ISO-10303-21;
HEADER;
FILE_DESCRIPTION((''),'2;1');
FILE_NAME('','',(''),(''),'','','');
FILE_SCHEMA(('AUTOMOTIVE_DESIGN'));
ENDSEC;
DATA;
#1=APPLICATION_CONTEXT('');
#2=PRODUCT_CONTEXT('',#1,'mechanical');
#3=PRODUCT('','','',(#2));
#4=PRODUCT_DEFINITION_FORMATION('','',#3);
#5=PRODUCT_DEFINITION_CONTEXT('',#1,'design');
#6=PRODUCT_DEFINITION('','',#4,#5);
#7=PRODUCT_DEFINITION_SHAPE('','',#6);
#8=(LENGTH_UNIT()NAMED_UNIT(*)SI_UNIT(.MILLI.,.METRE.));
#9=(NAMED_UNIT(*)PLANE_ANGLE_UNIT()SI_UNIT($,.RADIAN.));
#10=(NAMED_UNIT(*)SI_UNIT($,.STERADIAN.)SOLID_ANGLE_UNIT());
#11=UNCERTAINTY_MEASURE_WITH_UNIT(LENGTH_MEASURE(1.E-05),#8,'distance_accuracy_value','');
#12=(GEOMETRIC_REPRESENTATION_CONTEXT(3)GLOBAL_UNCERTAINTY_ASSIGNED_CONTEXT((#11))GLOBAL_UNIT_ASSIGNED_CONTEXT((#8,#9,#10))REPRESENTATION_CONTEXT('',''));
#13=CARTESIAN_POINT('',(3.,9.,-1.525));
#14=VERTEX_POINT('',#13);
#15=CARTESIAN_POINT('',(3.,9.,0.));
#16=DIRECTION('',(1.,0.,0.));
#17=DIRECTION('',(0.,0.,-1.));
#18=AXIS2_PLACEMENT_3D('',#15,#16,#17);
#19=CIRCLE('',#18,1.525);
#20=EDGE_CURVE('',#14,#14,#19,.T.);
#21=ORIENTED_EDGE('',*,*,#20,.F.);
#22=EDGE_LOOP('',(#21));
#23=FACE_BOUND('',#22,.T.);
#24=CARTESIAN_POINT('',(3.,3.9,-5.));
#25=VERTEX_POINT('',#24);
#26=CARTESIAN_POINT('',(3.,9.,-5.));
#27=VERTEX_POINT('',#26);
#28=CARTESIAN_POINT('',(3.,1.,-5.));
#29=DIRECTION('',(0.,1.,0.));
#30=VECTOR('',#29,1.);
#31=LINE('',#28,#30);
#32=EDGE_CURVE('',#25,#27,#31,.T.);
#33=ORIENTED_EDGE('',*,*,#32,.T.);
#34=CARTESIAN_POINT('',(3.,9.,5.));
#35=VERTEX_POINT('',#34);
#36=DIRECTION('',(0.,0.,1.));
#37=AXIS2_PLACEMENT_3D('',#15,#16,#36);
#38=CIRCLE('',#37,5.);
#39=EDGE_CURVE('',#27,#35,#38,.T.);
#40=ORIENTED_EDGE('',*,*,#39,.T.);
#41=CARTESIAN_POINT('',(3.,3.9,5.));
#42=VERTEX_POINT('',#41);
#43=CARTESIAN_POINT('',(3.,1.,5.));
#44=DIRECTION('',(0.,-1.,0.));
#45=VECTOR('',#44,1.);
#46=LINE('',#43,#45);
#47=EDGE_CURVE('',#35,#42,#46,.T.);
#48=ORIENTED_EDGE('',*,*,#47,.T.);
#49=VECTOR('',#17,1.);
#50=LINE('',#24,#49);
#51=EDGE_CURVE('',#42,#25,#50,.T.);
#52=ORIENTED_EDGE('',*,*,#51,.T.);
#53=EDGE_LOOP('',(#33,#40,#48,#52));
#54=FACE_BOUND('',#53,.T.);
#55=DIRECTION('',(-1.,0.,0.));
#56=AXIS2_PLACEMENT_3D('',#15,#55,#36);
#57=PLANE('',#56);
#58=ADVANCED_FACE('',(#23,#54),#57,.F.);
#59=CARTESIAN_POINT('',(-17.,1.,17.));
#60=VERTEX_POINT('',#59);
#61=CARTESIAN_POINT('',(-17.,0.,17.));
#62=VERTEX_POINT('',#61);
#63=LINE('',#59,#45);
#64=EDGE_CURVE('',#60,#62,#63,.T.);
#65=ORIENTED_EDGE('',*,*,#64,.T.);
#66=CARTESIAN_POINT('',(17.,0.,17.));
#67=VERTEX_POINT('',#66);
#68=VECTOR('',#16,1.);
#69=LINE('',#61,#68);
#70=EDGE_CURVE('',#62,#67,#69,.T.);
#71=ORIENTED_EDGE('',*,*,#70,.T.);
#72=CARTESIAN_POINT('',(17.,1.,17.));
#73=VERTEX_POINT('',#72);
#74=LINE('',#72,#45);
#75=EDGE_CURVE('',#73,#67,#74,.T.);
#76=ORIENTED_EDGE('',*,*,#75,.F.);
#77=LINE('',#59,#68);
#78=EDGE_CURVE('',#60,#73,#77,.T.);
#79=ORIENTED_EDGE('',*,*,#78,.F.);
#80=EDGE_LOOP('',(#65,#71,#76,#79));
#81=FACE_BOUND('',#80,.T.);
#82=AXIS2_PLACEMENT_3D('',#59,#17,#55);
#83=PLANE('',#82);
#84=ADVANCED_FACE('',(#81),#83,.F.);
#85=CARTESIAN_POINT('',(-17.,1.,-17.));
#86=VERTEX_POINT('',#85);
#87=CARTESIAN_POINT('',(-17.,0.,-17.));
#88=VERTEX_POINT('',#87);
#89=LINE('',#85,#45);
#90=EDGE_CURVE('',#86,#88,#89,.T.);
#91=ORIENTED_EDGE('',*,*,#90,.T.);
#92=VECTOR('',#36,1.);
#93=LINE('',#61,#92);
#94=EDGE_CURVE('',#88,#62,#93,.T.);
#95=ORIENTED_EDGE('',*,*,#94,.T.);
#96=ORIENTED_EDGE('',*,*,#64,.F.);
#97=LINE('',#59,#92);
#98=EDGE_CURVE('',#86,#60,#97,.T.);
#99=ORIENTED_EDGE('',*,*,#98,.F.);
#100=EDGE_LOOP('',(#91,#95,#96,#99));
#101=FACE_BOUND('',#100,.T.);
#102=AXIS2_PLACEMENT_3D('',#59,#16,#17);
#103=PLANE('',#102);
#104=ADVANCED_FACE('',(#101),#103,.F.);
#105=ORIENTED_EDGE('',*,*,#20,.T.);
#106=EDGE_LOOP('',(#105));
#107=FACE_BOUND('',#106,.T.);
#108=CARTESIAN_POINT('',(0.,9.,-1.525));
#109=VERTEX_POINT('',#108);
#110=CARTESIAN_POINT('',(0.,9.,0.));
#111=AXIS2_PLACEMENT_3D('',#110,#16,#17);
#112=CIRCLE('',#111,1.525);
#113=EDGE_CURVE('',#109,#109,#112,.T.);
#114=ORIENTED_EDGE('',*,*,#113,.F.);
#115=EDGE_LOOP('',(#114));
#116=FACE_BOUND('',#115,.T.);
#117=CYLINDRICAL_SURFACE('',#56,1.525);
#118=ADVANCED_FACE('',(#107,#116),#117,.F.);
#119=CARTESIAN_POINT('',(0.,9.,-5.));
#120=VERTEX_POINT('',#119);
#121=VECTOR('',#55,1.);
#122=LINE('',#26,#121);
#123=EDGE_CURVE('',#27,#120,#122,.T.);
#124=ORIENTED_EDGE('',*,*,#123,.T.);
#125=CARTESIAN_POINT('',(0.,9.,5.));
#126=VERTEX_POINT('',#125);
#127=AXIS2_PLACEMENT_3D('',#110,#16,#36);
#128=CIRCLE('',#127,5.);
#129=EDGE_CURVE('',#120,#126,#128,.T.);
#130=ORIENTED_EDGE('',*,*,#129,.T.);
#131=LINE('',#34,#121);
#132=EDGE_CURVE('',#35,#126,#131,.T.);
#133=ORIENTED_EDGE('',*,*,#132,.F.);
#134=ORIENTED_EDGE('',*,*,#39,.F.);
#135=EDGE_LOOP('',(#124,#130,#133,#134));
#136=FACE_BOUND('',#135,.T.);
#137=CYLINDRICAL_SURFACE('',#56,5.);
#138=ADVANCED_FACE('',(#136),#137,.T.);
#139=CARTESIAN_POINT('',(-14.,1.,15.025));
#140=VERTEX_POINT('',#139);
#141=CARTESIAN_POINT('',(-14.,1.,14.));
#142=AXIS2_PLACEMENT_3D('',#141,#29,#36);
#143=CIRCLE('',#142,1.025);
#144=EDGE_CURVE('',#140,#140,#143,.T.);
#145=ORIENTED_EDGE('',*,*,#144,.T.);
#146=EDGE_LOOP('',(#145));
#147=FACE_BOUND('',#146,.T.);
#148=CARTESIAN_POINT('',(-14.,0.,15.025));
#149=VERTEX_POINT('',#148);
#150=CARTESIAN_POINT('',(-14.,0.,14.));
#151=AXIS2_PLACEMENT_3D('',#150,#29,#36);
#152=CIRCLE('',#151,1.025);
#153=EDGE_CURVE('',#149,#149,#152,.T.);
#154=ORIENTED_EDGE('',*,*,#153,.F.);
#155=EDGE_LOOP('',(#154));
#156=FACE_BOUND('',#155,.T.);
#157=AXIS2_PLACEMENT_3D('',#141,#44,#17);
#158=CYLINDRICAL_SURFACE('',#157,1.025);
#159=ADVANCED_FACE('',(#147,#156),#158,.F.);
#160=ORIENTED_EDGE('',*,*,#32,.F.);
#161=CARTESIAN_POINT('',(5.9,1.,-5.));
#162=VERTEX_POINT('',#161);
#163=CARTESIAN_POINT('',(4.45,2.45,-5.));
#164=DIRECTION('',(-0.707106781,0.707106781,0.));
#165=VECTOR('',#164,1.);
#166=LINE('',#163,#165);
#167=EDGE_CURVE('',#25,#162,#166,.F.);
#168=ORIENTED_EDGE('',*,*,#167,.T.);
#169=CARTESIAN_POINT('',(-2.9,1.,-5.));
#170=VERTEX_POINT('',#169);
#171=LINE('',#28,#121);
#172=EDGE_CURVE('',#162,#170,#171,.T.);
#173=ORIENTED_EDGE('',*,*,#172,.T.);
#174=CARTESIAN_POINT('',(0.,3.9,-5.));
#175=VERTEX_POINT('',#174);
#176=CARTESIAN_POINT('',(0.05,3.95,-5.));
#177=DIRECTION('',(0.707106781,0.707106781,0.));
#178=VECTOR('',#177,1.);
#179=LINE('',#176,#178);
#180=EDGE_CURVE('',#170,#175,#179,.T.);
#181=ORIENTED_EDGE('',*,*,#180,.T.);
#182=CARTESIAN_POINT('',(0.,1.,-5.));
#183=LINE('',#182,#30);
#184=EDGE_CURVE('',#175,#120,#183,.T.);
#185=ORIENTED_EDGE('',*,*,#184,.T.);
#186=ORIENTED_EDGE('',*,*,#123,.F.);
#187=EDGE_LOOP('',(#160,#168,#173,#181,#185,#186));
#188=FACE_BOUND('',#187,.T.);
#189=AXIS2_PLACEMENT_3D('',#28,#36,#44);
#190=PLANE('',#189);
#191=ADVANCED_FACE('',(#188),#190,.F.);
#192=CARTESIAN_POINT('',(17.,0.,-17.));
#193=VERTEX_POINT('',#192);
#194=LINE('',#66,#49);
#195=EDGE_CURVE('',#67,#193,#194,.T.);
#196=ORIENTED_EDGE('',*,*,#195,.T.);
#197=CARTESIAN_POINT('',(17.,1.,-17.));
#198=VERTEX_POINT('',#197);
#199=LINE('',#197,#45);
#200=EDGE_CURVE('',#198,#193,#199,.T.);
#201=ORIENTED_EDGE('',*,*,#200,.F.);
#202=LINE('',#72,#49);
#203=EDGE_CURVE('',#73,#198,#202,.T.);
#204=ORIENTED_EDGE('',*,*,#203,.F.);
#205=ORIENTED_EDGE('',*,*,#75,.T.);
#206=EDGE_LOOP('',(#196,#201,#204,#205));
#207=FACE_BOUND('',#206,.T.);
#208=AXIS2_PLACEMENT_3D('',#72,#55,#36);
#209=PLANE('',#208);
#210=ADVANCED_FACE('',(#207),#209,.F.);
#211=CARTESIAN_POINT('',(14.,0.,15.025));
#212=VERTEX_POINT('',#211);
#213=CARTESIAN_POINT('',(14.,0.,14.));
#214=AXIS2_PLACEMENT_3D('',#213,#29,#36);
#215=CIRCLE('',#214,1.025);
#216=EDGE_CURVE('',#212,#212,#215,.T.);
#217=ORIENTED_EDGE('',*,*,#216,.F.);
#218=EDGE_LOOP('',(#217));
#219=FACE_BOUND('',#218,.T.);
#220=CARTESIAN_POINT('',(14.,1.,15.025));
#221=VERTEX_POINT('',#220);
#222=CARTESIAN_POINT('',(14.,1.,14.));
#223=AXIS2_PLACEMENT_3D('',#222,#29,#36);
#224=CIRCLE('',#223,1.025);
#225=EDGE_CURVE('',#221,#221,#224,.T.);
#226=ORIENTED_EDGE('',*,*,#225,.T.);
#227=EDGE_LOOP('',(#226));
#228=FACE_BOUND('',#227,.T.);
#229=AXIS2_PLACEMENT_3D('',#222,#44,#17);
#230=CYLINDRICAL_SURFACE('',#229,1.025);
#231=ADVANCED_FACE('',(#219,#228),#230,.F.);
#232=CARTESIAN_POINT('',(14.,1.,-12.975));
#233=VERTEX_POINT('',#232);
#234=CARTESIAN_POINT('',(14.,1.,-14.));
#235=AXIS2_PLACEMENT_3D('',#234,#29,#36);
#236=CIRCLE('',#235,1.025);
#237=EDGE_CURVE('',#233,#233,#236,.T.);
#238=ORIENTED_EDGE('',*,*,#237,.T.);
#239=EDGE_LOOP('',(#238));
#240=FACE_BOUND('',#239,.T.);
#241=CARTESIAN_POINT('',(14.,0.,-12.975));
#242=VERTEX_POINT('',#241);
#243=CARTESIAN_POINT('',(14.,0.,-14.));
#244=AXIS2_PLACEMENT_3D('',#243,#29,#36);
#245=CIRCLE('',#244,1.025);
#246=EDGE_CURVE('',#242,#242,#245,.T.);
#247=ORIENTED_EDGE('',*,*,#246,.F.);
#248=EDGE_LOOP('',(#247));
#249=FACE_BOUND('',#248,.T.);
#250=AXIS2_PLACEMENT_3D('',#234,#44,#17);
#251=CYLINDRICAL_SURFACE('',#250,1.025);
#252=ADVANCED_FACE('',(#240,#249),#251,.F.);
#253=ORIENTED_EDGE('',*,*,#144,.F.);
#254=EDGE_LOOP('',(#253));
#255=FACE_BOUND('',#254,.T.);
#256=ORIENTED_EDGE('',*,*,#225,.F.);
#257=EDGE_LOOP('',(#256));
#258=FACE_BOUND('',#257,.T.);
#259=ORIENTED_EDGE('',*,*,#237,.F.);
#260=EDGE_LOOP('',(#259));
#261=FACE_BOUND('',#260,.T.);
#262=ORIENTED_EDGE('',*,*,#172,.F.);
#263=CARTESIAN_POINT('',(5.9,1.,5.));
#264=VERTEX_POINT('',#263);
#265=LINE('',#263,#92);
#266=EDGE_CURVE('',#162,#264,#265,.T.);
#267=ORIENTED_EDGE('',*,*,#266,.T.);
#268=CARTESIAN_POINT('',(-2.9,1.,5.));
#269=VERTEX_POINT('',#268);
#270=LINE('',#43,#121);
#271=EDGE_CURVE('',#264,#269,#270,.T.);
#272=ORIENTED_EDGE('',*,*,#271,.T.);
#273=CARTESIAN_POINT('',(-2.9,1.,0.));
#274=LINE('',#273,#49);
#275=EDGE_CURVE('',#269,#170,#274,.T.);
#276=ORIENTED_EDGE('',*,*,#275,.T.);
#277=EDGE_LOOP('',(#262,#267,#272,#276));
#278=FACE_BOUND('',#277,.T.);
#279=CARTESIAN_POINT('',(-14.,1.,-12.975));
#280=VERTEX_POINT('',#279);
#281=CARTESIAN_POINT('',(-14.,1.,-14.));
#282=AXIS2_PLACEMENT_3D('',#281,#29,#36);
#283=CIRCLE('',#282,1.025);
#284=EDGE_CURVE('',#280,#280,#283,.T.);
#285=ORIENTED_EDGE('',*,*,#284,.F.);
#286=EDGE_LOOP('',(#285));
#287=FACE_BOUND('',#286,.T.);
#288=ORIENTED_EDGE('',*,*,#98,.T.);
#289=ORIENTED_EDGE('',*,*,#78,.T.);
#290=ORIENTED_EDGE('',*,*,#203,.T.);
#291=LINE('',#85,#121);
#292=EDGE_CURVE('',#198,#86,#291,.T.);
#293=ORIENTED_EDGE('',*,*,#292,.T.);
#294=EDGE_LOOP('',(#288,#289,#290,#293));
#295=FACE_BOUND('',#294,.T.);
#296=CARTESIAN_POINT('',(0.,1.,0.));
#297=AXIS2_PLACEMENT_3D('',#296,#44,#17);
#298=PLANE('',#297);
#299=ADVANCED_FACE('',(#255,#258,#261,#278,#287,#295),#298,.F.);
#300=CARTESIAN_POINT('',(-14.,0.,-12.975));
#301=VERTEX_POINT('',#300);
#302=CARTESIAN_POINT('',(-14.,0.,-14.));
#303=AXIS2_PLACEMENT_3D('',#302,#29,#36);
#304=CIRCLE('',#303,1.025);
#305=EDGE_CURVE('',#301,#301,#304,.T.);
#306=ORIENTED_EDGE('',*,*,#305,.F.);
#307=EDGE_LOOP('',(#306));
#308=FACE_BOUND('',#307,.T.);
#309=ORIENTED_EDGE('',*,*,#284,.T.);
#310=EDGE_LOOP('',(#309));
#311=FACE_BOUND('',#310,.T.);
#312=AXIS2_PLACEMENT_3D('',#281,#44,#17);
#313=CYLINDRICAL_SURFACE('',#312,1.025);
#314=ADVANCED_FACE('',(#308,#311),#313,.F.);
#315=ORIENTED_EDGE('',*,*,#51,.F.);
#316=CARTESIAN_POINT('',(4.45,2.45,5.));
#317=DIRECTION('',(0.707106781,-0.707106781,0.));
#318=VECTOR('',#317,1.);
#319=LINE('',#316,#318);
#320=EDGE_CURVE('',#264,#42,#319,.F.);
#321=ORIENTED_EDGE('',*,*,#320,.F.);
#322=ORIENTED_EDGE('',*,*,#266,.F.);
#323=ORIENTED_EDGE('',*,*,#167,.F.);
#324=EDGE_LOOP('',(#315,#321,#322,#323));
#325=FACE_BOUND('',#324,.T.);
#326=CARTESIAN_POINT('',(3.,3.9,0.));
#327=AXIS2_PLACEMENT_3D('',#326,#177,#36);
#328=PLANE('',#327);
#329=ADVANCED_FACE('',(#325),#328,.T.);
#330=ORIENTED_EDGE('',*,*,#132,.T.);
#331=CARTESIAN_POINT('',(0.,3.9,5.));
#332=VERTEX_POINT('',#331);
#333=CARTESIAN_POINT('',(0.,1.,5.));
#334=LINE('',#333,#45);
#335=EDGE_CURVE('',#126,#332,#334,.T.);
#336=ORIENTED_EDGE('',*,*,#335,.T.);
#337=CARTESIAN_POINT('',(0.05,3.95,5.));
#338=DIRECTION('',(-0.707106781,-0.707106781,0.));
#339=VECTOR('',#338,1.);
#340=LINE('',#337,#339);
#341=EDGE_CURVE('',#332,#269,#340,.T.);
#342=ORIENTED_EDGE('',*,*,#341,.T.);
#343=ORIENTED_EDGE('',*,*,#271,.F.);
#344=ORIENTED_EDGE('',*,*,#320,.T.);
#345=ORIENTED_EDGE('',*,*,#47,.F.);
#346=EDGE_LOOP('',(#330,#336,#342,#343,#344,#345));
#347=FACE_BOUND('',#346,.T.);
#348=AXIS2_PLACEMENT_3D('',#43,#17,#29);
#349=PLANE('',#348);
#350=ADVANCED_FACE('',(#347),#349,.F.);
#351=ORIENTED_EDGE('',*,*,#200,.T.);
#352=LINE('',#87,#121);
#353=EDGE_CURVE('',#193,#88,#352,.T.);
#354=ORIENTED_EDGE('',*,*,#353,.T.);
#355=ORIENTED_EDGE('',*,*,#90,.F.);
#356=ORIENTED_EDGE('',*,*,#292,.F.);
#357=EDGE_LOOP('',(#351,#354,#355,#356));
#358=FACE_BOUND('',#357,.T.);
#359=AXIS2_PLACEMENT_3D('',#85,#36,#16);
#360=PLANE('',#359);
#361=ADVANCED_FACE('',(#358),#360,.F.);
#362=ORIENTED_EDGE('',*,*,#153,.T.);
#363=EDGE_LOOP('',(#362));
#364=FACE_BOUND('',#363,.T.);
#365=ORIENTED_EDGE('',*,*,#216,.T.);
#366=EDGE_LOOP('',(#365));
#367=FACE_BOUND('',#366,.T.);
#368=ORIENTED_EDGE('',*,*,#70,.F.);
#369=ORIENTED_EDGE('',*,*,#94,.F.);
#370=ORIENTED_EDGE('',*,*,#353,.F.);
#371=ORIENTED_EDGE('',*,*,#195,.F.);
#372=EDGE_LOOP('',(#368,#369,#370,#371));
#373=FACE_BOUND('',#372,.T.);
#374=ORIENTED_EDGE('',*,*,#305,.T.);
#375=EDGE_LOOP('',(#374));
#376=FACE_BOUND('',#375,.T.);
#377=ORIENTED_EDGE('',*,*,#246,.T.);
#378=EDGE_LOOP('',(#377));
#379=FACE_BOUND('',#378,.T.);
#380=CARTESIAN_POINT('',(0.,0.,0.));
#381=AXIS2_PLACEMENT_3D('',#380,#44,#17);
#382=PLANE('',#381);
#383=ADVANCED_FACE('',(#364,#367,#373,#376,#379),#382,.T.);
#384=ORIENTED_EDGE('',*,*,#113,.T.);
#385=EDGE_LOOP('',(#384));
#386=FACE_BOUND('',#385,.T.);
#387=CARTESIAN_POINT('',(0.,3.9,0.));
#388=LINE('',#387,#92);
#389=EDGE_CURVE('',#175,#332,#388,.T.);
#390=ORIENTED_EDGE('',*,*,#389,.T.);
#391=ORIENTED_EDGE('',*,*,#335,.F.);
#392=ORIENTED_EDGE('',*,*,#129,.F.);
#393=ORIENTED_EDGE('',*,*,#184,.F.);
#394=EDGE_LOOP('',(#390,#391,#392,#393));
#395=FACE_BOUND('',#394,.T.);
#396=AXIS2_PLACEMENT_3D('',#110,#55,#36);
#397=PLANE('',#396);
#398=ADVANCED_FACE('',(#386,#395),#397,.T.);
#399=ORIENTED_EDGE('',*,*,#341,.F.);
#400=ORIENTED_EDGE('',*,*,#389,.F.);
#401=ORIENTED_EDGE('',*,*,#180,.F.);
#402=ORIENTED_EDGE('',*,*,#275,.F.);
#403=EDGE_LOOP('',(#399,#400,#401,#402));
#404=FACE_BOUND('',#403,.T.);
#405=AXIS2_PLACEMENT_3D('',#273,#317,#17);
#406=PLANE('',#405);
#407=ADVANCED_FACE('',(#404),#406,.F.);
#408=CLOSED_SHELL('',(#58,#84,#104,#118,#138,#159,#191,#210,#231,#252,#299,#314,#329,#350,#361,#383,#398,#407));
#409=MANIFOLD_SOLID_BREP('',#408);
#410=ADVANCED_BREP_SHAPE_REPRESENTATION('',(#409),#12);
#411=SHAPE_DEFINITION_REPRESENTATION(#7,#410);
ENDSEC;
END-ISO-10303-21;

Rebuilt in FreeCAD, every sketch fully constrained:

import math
import FreeCAD as App
import Part
import Sketcher
from FreeCAD import Vector


def edges_at(feature, points):
    """Names of the edges that pass closest to the given points."""
    edges = feature.Shape.Edges
    near = lambda p: min(range(len(edges)), key=lambda i: edges[i].distToShape(Part.Vertex(*p))[0])
    return sorted({f"Edge{near(p) + 1}" for p in points})

doc = App.newDocument("Part")
body = doc.addObject("PartDesign::Body", "Body")

sketch1 = body.newObject("Sketcher::SketchObject", "Sketch")
sketch1.AttachmentSupport = (doc.getObject("XZ_Plane"), [""])
sketch1.MapMode = "FlatFace"
sketch1.addGeometry(Part.LineSegment(Vector(-17, -17, 0), Vector(-17, 17, 0)), False)
sketch1.addGeometry(Part.LineSegment(Vector(-17, 17, 0), Vector(17, 17, 0)), False)
sketch1.addGeometry(Part.LineSegment(Vector(17, 17, 0), Vector(17, -17, 0)), False)
sketch1.addGeometry(Part.LineSegment(Vector(17, -17, 0), Vector(-17, -17, 0)), False)
sketch1.addGeometry(Part.Circle(Vector(-14, 14, 0), Vector(0, 0, 1), 1.025), False)
sketch1.addGeometry(Part.Circle(Vector(14, 14, 0), Vector(0, 0, 1), 1.025), False)
sketch1.addGeometry(Part.Circle(Vector(-14, -14, 0), Vector(0, 0, 1), 1.025), False)
sketch1.addGeometry(Part.Circle(Vector(14, -14, 0), Vector(0, 0, 1), 1.025), False)
sketch1.addConstraint(Sketcher.Constraint("Coincident", 0, 2, 1, 1))
sketch1.addConstraint(Sketcher.Constraint("Coincident", 1, 2, 2, 1))
sketch1.addConstraint(Sketcher.Constraint("Coincident", 2, 2, 3, 1))
sketch1.addConstraint(Sketcher.Constraint("Coincident", 3, 2, 0, 1))
sketch1.addConstraint(Sketcher.Constraint("Vertical", 0))
sketch1.addConstraint(Sketcher.Constraint("Horizontal", 1))
sketch1.addConstraint(Sketcher.Constraint("Vertical", 2))
sketch1.addConstraint(Sketcher.Constraint("Horizontal", 3))
sketch1.addConstraint(Sketcher.Constraint("Equal", 4, 5))
sketch1.addConstraint(Sketcher.Constraint("Equal", 5, 6))
sketch1.addConstraint(Sketcher.Constraint("Equal", 6, 7))
sketch1.addConstraint(Sketcher.Constraint("Symmetric", 5, 3, 6, 3, -1, 1))
sketch1.addConstraint(Sketcher.Constraint("Symmetric", 4, 3, 7, 3, -1, 1))
sketch1.addConstraint(Sketcher.Constraint("Symmetric", 0, 2, 2, 2, -1, 1))
sketch1.addConstraint(Sketcher.Constraint("Symmetric", 4, 3, 5, 3, -2))
sketch1.addConstraint(Sketcher.Constraint("Equal", 3, 0))
sketch1.addConstraint(Sketcher.Constraint("Diameter", 4, 2.05))
sketch1.addConstraint(Sketcher.Constraint("DistanceX", 1, 1, 1, 2, 34.0))
sketch1.addConstraint(Sketcher.Constraint("DistanceX", 4, 3, -1, 1, 14.0))
sketch1.addConstraint(Sketcher.Constraint("DistanceY", -1, 1, 4, 3, 14.0))
pad1 = body.newObject("PartDesign::Pad", "Pad")
pad1.Profile = sketch1
pad1.Length = 1
pad1.Reversed = True

sketch2 = body.newObject("Sketcher::SketchObject", "Sketch001")
sketch2.AttachmentSupport = (doc.getObject("YZ_Plane"), [""])
sketch2.MapMode = "FlatFace"
sketch2.addGeometry(Part.LineSegment(Vector(1, 5, 0), Vector(1, -5, 0)), False)
sketch2.addGeometry(Part.LineSegment(Vector(1, -5, 0), Vector(9, -5, 0)), False)
sketch2.addGeometry(Part.ArcOfCircle(Part.Circle(Vector(9, 0, 0), Vector(0, 0, 1), 5), math.radians(-90), math.radians(90)), False)
sketch2.addGeometry(Part.LineSegment(Vector(9, 5, 0), Vector(1, 5, 0)), False)
sketch2.addGeometry(Part.Circle(Vector(9, 0, 0), Vector(0, 0, 1), 1.525), False)
sketch2.addConstraint(Sketcher.Constraint("Coincident", 0, 2, 1, 1))
sketch2.addConstraint(Sketcher.Constraint("Tangent", 1, 2, 2, 1))
sketch2.addConstraint(Sketcher.Constraint("Tangent", 2, 2, 3, 1))
sketch2.addConstraint(Sketcher.Constraint("Coincident", 3, 2, 0, 1))
sketch2.addConstraint(Sketcher.Constraint("Vertical", 0))
sketch2.addConstraint(Sketcher.Constraint("Horizontal", 1))
sketch2.addConstraint(Sketcher.Constraint("Horizontal", 3))
sketch2.addConstraint(Sketcher.Constraint("Coincident", 4, 3, 2, 3))
sketch2.addConstraint(Sketcher.Constraint("PointOnObject", 2, 3, -1))
sketch2.addConstraint(Sketcher.Constraint("Radius", 2, 5.0))
sketch2.addConstraint(Sketcher.Constraint("Diameter", 4, 3.05))
sketch2.addConstraint(Sketcher.Constraint("DistanceX", 1, 1, 1, 2, 8.0))
sketch2.addConstraint(Sketcher.Constraint("DistanceX", -1, 1, 2, 3, 9.0))
pad2 = body.newObject("PartDesign::Pad", "Pad001")
pad2.Profile = sketch2
pad2.Length = 3
doc.recompute()

chamfer = body.newObject("PartDesign::Chamfer", "Chamfer")
chamfer.Base = (pad2, edges_at(pad2, [(3, 1, 0), (0, 1, 0)]))
chamfer.Size = 2.9

doc.recompute()
